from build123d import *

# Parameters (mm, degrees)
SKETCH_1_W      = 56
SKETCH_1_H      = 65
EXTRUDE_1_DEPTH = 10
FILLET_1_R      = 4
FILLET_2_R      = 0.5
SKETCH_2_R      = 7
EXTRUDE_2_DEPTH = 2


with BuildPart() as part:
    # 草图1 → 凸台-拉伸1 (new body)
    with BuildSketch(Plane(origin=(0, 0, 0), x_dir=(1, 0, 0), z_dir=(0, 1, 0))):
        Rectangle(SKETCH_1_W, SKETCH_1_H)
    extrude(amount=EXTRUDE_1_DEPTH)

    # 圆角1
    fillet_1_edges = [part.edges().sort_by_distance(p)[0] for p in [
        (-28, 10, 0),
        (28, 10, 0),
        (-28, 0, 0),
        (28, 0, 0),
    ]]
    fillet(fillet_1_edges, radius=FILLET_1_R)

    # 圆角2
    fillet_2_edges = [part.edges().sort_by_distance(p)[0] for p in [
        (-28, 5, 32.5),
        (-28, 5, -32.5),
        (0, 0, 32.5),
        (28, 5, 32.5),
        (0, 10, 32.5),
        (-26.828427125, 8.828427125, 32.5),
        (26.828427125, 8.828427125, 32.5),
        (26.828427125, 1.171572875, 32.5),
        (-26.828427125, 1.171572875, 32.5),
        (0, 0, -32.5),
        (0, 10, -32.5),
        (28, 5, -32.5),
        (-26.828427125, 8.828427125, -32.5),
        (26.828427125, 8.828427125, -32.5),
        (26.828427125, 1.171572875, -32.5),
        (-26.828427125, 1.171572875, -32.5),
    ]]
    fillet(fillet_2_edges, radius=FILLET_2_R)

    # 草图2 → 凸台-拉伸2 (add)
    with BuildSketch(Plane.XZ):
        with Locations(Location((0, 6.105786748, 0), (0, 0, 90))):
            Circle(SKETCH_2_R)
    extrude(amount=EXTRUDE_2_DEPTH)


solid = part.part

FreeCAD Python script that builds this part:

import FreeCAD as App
import Part
import Sketcher

V = App.Vector
Q = App.Units.Quantity


def edges_at(feature, points):
    """Names of the edges that pass closest to the given points."""
    edges = feature.Shape.Edges
    near = lambda p: min(range(len(edges)), key=lambda i: edges[i].distToShape(Part.Vertex(*p))[0])
    return sorted({f"Edge{near(p) + 1}" for p in points})


def add_polygon(sketch, points):
    """Adds a closed chain of lines whose ends are joined by coincident constraints."""
    first, n = sketch.GeometryCount, len(points)
    for a, b in zip(points, points[1:] + points[:1]):
        sketch.addGeometry(Part.LineSegment(App.Vector(*a, 0), App.Vector(*b, 0)), False)
    for i in range(n):
        sketch.addConstraint(Sketcher.Constraint("Coincident", first + i, 2, first + (i + 1) % n, 1))

doc = App.newDocument("Part")
body = doc.addObject("PartDesign::Body", "Body")

# Sketch on XZ plane
sketch1 = body.newObject("Sketcher::SketchObject", "Sketch")
sketch1.AttachmentSupport = (doc.getObject("XZ_Plane"), [""])
sketch1.MapMode = "FlatFace"
add_polygon(sketch1, [(-28, -32.5), (-28, 32.5), (28, 32.5), (28, -32.5)])  # lines 0-3
sketch1.addConstraint(Sketcher.Constraint("Vertical", 0))
sketch1.addConstraint(Sketcher.Constraint("Horizontal", 1))
sketch1.addConstraint(Sketcher.Constraint("Vertical", 2))
sketch1.addConstraint(Sketcher.Constraint("Horizontal", 3))
sketch1.addConstraint(Sketcher.Constraint("Symmetric", 0, 2, 2, 2, -1, 1))
sketch1.addConstraint(Sketcher.Constraint("DistanceX", 1, 1, 1, 2, Q("56 mm")))
sketch1.addConstraint(Sketcher.Constraint("DistanceY", 0, 1, 0, 2, Q("65 mm")))
pad1 = body.newObject("PartDesign::Pad", "Pad")
pad1.Profile = sketch1
pad1.Length = 10
pad1.Reversed = True
doc.recompute()

fillet = body.newObject("PartDesign::Fillet", "Fillet")
fillet.Base = (pad1, edges_at(pad1, [
    (-28, 10, 0),
    (28, 10, 0),
    (-28, 0, 0),
    (28, 0, 0),
]))
fillet.Radius = 4
doc.recompute()

fillet2 = body.newObject("PartDesign::Fillet", "Fillet001")
fillet2.Base = (fillet, edges_at(fillet, [
    (-28, 5, 32.5),
    (-28, 5, -32.5),
    (0, 0, 32.5),
    (28, 5, 32.5),
    (0, 10, 32.5),
    (-26.828, 8.828, 32.5),
    (26.828, 8.828, 32.5),
    (26.828, 1.172, 32.5),
    (-26.828, 1.172, 32.5),
    (0, 0, -32.5),
    (0, 10, -32.5),
    (28, 5, -32.5),
    (-26.828, 8.828, -32.5),
    (26.828, 8.828, -32.5),
    (26.828, 1.172, -32.5),
    (-26.828, 1.172, -32.5),
]))
fillet2.Radius = 0.5

# Sketch on XZ plane
sketch2 = body.newObject("Sketcher::SketchObject", "Sketch001")
sketch2.AttachmentSupport = (doc.getObject("XZ_Plane"), [""])
sketch2.MapMode = "FlatFace"
sketch2.addGeometry(Part.Circle(V(0, 6.105787, 0), V(0, 0, 1), 7), False)
sketch2.addConstraint(Sketcher.Constraint("PointOnObject", 0, 3, -2))
sketch2.addConstraint(Sketcher.Constraint("Diameter", 0, Q("14 mm")))
sketch2.addConstraint(Sketcher.Constraint("DistanceY", -1, 1, 0, 3, Q("6.105787 mm")))
pad2 = body.newObject("PartDesign::Pad", "Pad001")
pad2.Profile = sketch2
pad2.Length = 2

doc.recompute()
